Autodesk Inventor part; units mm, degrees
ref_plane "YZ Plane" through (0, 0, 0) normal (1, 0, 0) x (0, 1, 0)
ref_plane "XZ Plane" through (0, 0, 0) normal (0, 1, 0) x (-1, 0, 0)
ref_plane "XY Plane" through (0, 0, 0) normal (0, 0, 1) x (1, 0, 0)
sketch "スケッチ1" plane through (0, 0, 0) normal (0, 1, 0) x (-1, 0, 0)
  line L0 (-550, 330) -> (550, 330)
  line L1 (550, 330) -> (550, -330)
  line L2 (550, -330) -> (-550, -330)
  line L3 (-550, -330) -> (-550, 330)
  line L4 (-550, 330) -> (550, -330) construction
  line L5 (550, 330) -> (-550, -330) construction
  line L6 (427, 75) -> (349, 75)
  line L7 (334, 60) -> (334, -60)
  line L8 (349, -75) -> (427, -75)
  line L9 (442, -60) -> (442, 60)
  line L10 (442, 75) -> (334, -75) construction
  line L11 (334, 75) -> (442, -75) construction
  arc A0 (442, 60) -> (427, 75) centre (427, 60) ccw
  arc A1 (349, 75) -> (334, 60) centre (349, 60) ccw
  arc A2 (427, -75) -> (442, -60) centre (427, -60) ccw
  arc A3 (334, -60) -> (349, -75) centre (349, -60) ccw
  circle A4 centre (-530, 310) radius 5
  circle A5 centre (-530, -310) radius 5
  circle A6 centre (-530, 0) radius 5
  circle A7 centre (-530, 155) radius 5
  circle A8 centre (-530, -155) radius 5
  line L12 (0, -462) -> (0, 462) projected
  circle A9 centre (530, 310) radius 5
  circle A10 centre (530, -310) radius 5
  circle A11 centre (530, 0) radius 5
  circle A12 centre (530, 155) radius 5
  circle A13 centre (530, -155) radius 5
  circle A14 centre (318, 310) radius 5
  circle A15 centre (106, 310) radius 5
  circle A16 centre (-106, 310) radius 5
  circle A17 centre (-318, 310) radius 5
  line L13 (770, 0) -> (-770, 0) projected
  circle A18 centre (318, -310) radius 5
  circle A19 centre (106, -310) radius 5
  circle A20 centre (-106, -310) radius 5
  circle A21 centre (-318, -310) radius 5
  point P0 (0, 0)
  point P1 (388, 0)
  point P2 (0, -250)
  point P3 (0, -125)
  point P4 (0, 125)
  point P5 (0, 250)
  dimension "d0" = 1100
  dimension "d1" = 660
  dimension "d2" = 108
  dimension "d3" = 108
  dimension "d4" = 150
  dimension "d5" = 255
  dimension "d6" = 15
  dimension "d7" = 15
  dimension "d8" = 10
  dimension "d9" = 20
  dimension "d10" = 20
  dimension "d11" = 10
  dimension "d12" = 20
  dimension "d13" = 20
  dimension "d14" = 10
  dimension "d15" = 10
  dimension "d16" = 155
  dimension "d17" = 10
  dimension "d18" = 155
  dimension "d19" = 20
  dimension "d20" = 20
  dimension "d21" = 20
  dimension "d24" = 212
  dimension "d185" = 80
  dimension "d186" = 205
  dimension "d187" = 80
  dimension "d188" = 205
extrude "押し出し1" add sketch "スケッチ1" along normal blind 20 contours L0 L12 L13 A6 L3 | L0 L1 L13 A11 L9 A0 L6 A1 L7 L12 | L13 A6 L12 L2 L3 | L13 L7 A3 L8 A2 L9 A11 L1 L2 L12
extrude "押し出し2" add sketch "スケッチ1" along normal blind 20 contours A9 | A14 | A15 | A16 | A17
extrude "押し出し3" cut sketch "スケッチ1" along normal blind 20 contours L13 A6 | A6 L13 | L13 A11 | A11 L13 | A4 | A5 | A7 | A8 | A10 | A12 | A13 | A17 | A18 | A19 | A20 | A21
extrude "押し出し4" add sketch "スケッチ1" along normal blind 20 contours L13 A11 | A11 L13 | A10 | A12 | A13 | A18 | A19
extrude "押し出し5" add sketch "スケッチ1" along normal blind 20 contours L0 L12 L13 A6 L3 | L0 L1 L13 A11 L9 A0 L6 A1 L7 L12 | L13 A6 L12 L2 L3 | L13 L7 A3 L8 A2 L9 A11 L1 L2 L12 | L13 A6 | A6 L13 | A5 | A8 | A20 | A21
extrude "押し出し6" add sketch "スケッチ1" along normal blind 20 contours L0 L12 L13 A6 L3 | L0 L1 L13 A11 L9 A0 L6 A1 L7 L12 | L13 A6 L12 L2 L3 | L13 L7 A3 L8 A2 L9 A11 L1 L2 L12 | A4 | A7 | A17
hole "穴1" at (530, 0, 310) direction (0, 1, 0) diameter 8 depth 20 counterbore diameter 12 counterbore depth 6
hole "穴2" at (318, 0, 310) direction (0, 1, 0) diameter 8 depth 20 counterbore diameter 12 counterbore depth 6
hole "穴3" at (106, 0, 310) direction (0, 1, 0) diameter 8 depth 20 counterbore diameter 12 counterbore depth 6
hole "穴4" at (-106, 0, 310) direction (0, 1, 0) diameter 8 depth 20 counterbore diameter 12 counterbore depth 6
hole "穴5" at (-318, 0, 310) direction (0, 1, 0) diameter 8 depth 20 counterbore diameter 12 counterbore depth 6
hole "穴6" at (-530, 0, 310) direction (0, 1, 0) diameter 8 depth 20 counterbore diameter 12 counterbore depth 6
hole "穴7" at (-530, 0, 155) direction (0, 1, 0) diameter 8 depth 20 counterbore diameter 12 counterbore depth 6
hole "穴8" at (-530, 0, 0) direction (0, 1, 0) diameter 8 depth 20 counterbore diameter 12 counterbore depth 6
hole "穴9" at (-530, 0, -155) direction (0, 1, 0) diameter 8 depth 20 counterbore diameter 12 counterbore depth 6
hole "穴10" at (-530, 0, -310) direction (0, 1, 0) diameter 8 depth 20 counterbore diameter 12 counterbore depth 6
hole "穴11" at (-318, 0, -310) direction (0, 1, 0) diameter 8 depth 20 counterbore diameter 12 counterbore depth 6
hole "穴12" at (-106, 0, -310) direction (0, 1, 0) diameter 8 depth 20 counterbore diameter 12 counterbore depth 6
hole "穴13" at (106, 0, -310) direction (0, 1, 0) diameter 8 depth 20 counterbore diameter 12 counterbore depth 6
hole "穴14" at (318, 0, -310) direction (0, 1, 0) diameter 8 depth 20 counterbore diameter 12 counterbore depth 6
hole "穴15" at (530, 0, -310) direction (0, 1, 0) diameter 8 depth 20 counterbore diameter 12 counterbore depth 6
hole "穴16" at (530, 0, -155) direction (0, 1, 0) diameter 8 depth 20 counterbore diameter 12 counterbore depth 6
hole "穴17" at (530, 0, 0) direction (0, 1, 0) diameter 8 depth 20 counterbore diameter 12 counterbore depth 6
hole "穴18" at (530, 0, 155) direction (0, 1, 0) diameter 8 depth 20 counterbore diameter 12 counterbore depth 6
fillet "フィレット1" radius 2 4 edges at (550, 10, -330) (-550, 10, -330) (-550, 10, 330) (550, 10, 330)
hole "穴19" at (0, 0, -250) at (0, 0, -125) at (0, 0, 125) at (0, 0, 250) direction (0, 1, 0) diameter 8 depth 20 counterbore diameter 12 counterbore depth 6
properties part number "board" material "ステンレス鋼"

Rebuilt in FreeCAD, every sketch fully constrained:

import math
import FreeCAD as App
import Part
import Sketcher
Q = App.Units.Quantity


def edges_at(feature, points):
    """Names of the edges that pass closest to the given points."""
    edges = feature.Shape.Edges
    near = lambda p: min(range(len(edges)), key=lambda i: edges[i].distToShape(Part.Vertex(*p))[0])
    return sorted({f"Edge{near(p) + 1}" for p in points})

doc = App.newDocument("Part")
body = doc.addObject("PartDesign::Body", "Body")

# Sketch on XZ plane
sketch1 = body.newObject("Sketcher::SketchObject", "Sketch")
sketch1.AttachmentSupport = (doc.getObject("XZ_Plane"), [""])
sketch1.MapMode = "FlatFace"
sketch1.addGeometry([
    Part.LineSegment(App.Vector(550, 330, 0), App.Vector(550, -330, 0)),  # 0
    Part.LineSegment(App.Vector(550, -330, 0), App.Vector(-550, -330, 0)),  # 1
    Part.LineSegment(App.Vector(-550, -330, 0), App.Vector(-550, 330, 0)),  # 2
    Part.LineSegment(App.Vector(-550, 330, 0), App.Vector(550, 330, 0)),  # 3
    Part.Circle(App.Vector(530, 0, 0), App.Vector(0, 0, 1), 5),  # 4
    Part.Circle(App.Vector(530, 155, 0), App.Vector(0, 0, 1), 5),  # 5
    Part.Circle(App.Vector(530, 310, 0), App.Vector(0, 0, 1), 5),  # 6
    Part.Circle(App.Vector(318, 310, 0), App.Vector(0, 0, 1), 5),  # 7
    Part.Circle(App.Vector(106, 310, 0), App.Vector(0, 0, 1), 5),  # 8
    Part.Circle(App.Vector(-530, 0, 0), App.Vector(0, 0, 1), 5),  # 9
    Part.LineSegment(App.Vector(-442, 60, 0), App.Vector(-442, -60, 0)),  # 10
    Part.ArcOfCircle(Part.Circle(App.Vector(-427, -60, 0), App.Vector(0, 0, 1), 15), math.radians(180), math.radians(270)),  # 11
    Part.LineSegment(App.Vector(-427, -75, 0), App.Vector(-349, -75, 0)),  # 12
    Part.ArcOfCircle(Part.Circle(App.Vector(-349, -60, 0), App.Vector(0, 0, 1), 15), math.radians(-90), math.radians(0)),  # 13
    Part.LineSegment(App.Vector(-334, -60, 0), App.Vector(-334, 60, 0)),  # 14
    Part.ArcOfCircle(Part.Circle(App.Vector(-349, 60, 0), App.Vector(0, 0, 1), 15), math.radians(0), math.radians(90)),  # 15
    Part.LineSegment(App.Vector(-349, 75, 0), App.Vector(-427, 75, 0)),  # 16
    Part.ArcOfCircle(Part.Circle(App.Vector(-427, 60, 0), App.Vector(0, 0, 1), 15), math.radians(90), math.radians(180)),  # 17
    Part.Circle(App.Vector(-530, 310, 0), App.Vector(0, 0, 1), 5),  # 18
    Part.Circle(App.Vector(-530, 155, 0), App.Vector(0, 0, 1), 5),  # 19
    Part.Circle(App.Vector(-106, 310, 0), App.Vector(0, 0, 1), 5),  # 20
    Part.Circle(App.Vector(-318, 310, 0), App.Vector(0, 0, 1), 5),  # 21
    Part.Circle(App.Vector(106, -310, 0), App.Vector(0, 0, 1), 5),  # 22
    Part.Circle(App.Vector(530, -155, 0), App.Vector(0, 0, 1), 5),  # 23
    Part.Circle(App.Vector(530, -310, 0), App.Vector(0, 0, 1), 5),  # 24
    Part.Circle(App.Vector(318, -310, 0), App.Vector(0, 0, 1), 5),  # 25
    Part.Circle(App.Vector(-318, -310, 0), App.Vector(0, 0, 1), 5),  # 26
    Part.Circle(App.Vector(-530, -310, 0), App.Vector(0, 0, 1), 5),  # 27
    Part.Circle(App.Vector(-530, -155, 0), App.Vector(0, 0, 1), 5),  # 28
    Part.Circle(App.Vector(-106, -310, 0), App.Vector(0, 0, 1), 5),  # 29
], False)
sketch1.addConstraint([
    Sketcher.Constraint("Coincident", 0, 2, 1, 1),
    Sketcher.Constraint("Coincident", 1, 2, 2, 1),
    Sketcher.Constraint("Coincident", 2, 2, 3, 1),
    Sketcher.Constraint("Coincident", 3, 2, 0, 1),
    Sketcher.Constraint("Tangent", 10, 2, 11, 1),
    Sketcher.Constraint("Tangent", 11, 2, 12, 1),
    Sketcher.Constraint("Tangent", 12, 2, 13, 1),
    Sketcher.Constraint("Tangent", 13, 2, 14, 1),
    Sketcher.Constraint("Tangent", 14, 2, 15, 1),
    Sketcher.Constraint("Tangent", 15, 2, 16, 1),
    Sketcher.Constraint("Tangent", 16, 2, 17, 1),
    Sketcher.Constraint("Tangent", 17, 2, 10, 1),
    Sketcher.Constraint("Vertical", 0),
    Sketcher.Constraint("Horizontal", 1),
    Sketcher.Constraint("Vertical", 2),
    Sketcher.Constraint("Horizontal", 3),
    Sketcher.Constraint("Vertical", 10),
    Sketcher.Constraint("Horizontal", 12),
    Sketcher.Constraint("Vertical", 14),
    Sketcher.Constraint("Horizontal", 16),
    Sketcher.Constraint("Equal", 4, 5),
    Sketcher.Constraint("Equal", 5, 6),
    Sketcher.Constraint("Equal", 6, 7),
    Sketcher.Constraint("Equal", 7, 8),
    Sketcher.Constraint("Equal", 8, 9),
    Sketcher.Constraint("Equal", 11, 13),
    Sketcher.Constraint("Equal", 13, 15),
    Sketcher.Constraint("Equal", 15, 17),
    Sketcher.Constraint("Equal", 9, 18),
    Sketcher.Constraint("Equal", 18, 19),
    Sketcher.Constraint("Equal", 19, 20),
    Sketcher.Constraint("Equal", 20, 21),
    Sketcher.Constraint("Equal", 21, 22),
    Sketcher.Constraint("Equal", 22, 23),
    Sketcher.Constraint("Equal", 23, 24),
    Sketcher.Constraint("Equal", 24, 25),
    Sketcher.Constraint("Equal", 25, 26),
    Sketcher.Constraint("Equal", 26, 27),
    Sketcher.Constraint("Equal", 27, 28),
    Sketcher.Constraint("Equal", 28, 29),
    Sketcher.Constraint("Symmetric", 4, 3, 9, 3, -1, 1),
    Sketcher.Constraint("Symmetric", 20, 3, 22, 3, -1, 1),
    Sketcher.Constraint("Symmetric", 19, 3, 23, 3, -1, 1),
    Sketcher.Constraint("Symmetric", 18, 3, 24, 3, -1, 1),
    Sketcher.Constraint("Symmetric", 21, 3, 25, 3, -1, 1),
    Sketcher.Constraint("Symmetric", 7, 3, 26, 3, -1, 1),
    Sketcher.Constraint("Symmetric", 6, 3, 27, 3, -1, 1),
    Sketcher.Constraint("Symmetric", 5, 3, 28, 3, -1, 1),
    Sketcher.Constraint("Symmetric", 8, 3, 29, 3, -1, 1),
    Sketcher.Constraint("Symmetric", 0, 2, 2, 2, -1, 1),
    Sketcher.Constraint("Symmetric", 6, 3, 18, 3, -2),
    Sketcher.Constraint("Symmetric", 5, 3, 19, 3, -2),
    Sketcher.Constraint("Symmetric", 8, 3, 20, 3, -2),
    Sketcher.Constraint("Symmetric", 7, 3, 21, 3, -2),
    Sketcher.Constraint("PointOnObject", 4, 3, -1),
    Sketcher.Constraint("Horizontal", 6, 3, 7, 3),
    Sketcher.Constraint("Horizontal", 7, 3, 8, 3),
    Sketcher.Constraint("Vertical", 4, 3, 5, 3),
    Sketcher.Constraint("Vertical", 5, 3, 6, 3),
    Sketcher.Constraint("Diameter", 4, Q("10 mm")),
    Sketcher.Constraint("Radius", 11, Q("15 mm")),
    Sketcher.Constraint("DistanceX", 1, 2, 1, 1, Q("1100 mm")),
    Sketcher.Constraint("DistanceY", 0, 2, 0, 1, Q("660 mm")),
    Sketcher.Constraint("DistanceY", -1, 1, 5, 3, Q("155 mm")),
    Sketcher.Constraint("DistanceY", 5, 3, 6, 3, Q("155 mm")),
    Sketcher.Constraint("DistanceX", 7, 3, 6, 3, Q("212 mm")),
    Sketcher.Constraint("DistanceX", 8, 3, 7, 3, Q("212 mm")),
    Sketcher.Constraint("DistanceX", 20, 3, 8, 3, Q("212 mm")),
    Sketcher.Constraint("DistanceY", 28, 3, 11, 2, Q("80 mm")),
    Sketcher.Constraint("DistanceX", 10, 2, 13, 2, Q("108 mm")),
    Sketcher.Constraint("DistanceY", 10, 2, 10, 1, Q("120 mm")),
    Sketcher.Constraint("DistanceX", 11, 3, -1, 1, Q("427 mm")),
])
pad1 = body.newObject("PartDesign::Pad", "Pad")
pad1.Profile = sketch1
pad1.Length = 20
pad1.Reversed = True

# Sketch on XZ plane
sketch2 = body.newObject("Sketcher::SketchObject", "Sketch001")
sketch2.AttachmentSupport = (doc.getObject("XZ_Plane"), [""])
sketch2.MapMode = "FlatFace"
sketch2.addGeometry([
    Part.Circle(App.Vector(-530, 310, 0), App.Vector(0, 0, 1), 5),  # 0
    Part.Circle(App.Vector(-318, 310, 0), App.Vector(0, 0, 1), 5),  # 1
    Part.Circle(App.Vector(-106, 310, 0), App.Vector(0, 0, 1), 5),  # 2
    Part.Circle(App.Vector(106, 310, 0), App.Vector(0, 0, 1), 5),  # 3
    Part.Circle(App.Vector(318, 310, 0), App.Vector(0, 0, 1), 5),  # 4
], False)
sketch2.addConstraint([
    Sketcher.Constraint("Equal", 0, 1),
    Sketcher.Constraint("Equal", 1, 2),
    Sketcher.Constraint("Equal", 2, 3),
    Sketcher.Constraint("Equal", 3, 4),
    Sketcher.Constraint("Symmetric", 2, 3, 3, 3, -2),
    Sketcher.Constraint("Symmetric", 1, 3, 4, 3, -2),
    Sketcher.Constraint("Horizontal", 0, 3, 1, 3),
    Sketcher.Constraint("Horizontal", 1, 3, 2, 3),
    Sketcher.Constraint("Diameter", 0, Q("10 mm")),
    Sketcher.Constraint("DistanceX", 0, 3, 1, 3, Q("212 mm")),
    Sketcher.Constraint("DistanceX", 1, 3, 2, 3, Q("212 mm")),
    Sketcher.Constraint("DistanceX", 2, 3, 3, 3, Q("212 mm")),
    Sketcher.Constraint("DistanceY", -1, 1, 0, 3, Q("310 mm")),
])
pad2 = body.newObject("PartDesign::Pad", "Pad001")
pad2.Profile = sketch2
pad2.Length = 20
pad2.Reversed = True

# Sketch on XZ plane
sketch3 = body.newObject("Sketcher::SketchObject", "Sketch002")
sketch3.AttachmentSupport = (doc.getObject("XZ_Plane"), [""])
sketch3.MapMode = "FlatFace"
sketch3.addGeometry([
    Part.Circle(App.Vector(530, 0, 0), App.Vector(0, 0, 1), 5),  # 0
    Part.Circle(App.Vector(-530, 0, 0), App.Vector(0, 0, 1), 5),  # 1
    Part.Circle(App.Vector(530, 310, 0), App.Vector(0, 0, 1), 5),  # 2
    Part.Circle(App.Vector(530, -310, 0), App.Vector(0, 0, 1), 5),  # 3
    Part.Circle(App.Vector(530, 155, 0), App.Vector(0, 0, 1), 5),  # 4
    Part.Circle(App.Vector(530, -155, 0), App.Vector(0, 0, 1), 5),  # 5
    Part.Circle(App.Vector(-530, -310, 0), App.Vector(0, 0, 1), 5),  # 6
    Part.Circle(App.Vector(-530, 155, 0), App.Vector(0, 0, 1), 5),  # 7
    Part.Circle(App.Vector(-530, -155, 0), App.Vector(0, 0, 1), 5),  # 8
    Part.Circle(App.Vector(318, 310, 0), App.Vector(0, 0, 1), 5),  # 9
    Part.Circle(App.Vector(-318, -310, 0), App.Vector(0, 0, 1), 5),  # 10
    Part.Circle(App.Vector(-106, -310, 0), App.Vector(0, 0, 1), 5),  # 11
    Part.Circle(App.Vector(106, -310, 0), App.Vector(0, 0, 1), 5),  # 12
    Part.Circle(App.Vector(318, -310, 0), App.Vector(0, 0, 1), 5),  # 13
], False)
sketch3.addConstraint([
    Sketcher.Constraint("Equal", 0, 1),
    Sketcher.Constraint("Equal", 1, 2),
    Sketcher.Constraint("Equal", 2, 3),
    Sketcher.Constraint("Equal", 3, 4),
    Sketcher.Constraint("Equal", 4, 5),
    Sketcher.Constraint("Equal", 5, 6),
    Sketcher.Constraint("Equal", 6, 7),
    Sketcher.Constraint("Equal", 7, 8),
    Sketcher.Constraint("Equal", 8, 9),
    Sketcher.Constraint("Equal", 9, 10),
    Sketcher.Constraint("Equal", 10, 11),
    Sketcher.Constraint("Equal", 11, 12),
    Sketcher.Constraint("Equal", 12, 13),
    Sketcher.Constraint("Symmetric", 0, 3, 1, 3, -1, 1),
    Sketcher.Constraint("Symmetric", 2, 3, 6, 3, -1, 1),
    Sketcher.Constraint("Symmetric", 5, 3, 7, 3, -1, 1),
    Sketcher.Constraint("Symmetric", 4, 3, 8, 3, -1, 1),
    Sketcher.Constraint("Symmetric", 9, 3, 10, 3, -1, 1),
    Sketcher.Constraint("Symmetric", 3, 3, 6, 3, -2),
    Sketcher.Constraint("Symmetric", 4, 3, 7, 3, -2),
    Sketcher.Constraint("Symmetric", 11, 3, 12, 3, -2),
    Sketcher.Constraint("Symmetric", 10, 3, 13, 3, -2),
    Sketcher.Constraint("PointOnObject", 0, 3, -1),
    Sketcher.Constraint("Horizontal", 2, 3, 9, 3),
    Sketcher.Constraint("Horizontal", 10, 3, 11, 3),
    Sketcher.Constraint("Vertical", 0, 3, 2, 3),
    Sketcher.Constraint("Vertical", 3, 3, 4, 3),
    Sketcher.Constraint("Diameter", 0, Q("10 mm")),
    Sketcher.Constraint("DistanceY", -1, 1, 4, 3, Q("155 mm")),
    Sketcher.Constraint("DistanceY", 4, 3, 2, 3, Q("155 mm")),
    Sketcher.Constraint("DistanceX", 9, 3, 2, 3, Q("212 mm")),
    Sketcher.Constraint("DistanceX", 10, 3, 11, 3, Q("212 mm")),
    Sketcher.Constraint("DistanceX", 11, 3, 12, 3, Q("212 mm")),
])
pocket1 = body.newObject("PartDesign::Pocket", "Pocket")
pocket1.Profile = sketch3
pocket1.Length = 20

# Sketch on XZ plane
sketch4 = body.newObject("Sketcher::SketchObject", "Sketch003")
sketch4.AttachmentSupport = (doc.getObject("XZ_Plane"), [""])
sketch4.MapMode = "FlatFace"
sketch4.addGeometry([
    Part.Circle(App.Vector(-530, 0, 0), App.Vector(0, 0, 1), 5),  # 0
    Part.Circle(App.Vector(-530, -310, 0), App.Vector(0, 0, 1), 5),  # 1
    Part.Circle(App.Vector(-530, 155, 0), App.Vector(0, 0, 1), 5),  # 2
    Part.Circle(App.Vector(-530, -155, 0), App.Vector(0, 0, 1), 5),  # 3
    Part.Circle(App.Vector(-318, -310, 0), App.Vector(0, 0, 1), 5),  # 4
    Part.Circle(App.Vector(-106, -310, 0), App.Vector(0, 0, 1), 5),  # 5
], False)
sketch4.addConstraint([
    Sketcher.Constraint("Equal", 0, 1),
    Sketcher.Constraint("Equal", 1, 2),
    Sketcher.Constraint("Equal", 2, 3),
    Sketcher.Constraint("Equal", 3, 4),
    Sketcher.Constraint("Equal", 4, 5),
    Sketcher.Constraint("Symmetric", 2, 3, 3, 3, -1),
    Sketcher.Constraint("PointOnObject", 0, 3, -1),
    Sketcher.Constraint("Horizontal", 1, 3, 4, 3),
    Sketcher.Constraint("Horizontal", 4, 3, 5, 3),
    Sketcher.Constraint("Vertical", 0, 3, 1, 3),
    Sketcher.Constraint("Vertical", 1, 3, 2, 3),
    Sketcher.Constraint("Diameter", 0, Q("10 mm")),
    Sketcher.Constraint("DistanceY", -1, 1, 2, 3, Q("155 mm")),
    Sketcher.Constraint("DistanceY", 1, 3, 3, 3, Q("155 mm")),
    Sketcher.Constraint("DistanceX", 1, 3, 4, 3, Q("212 mm")),
    Sketcher.Constraint("DistanceX", 4, 3, 5, 3, Q("212 mm")),
    Sketcher.Constraint("DistanceX", 0, 3, -1, 1, Q("530 mm")),
])
pad3 = body.newObject("PartDesign::Pad", "Pad002")
pad3.Profile = sketch4
pad3.Length = 20
pad3.Reversed = True

# Sketch on XZ plane
sketch5 = body.newObject("Sketcher::SketchObject", "Sketch004")
sketch5.AttachmentSupport = (doc.getObject("XZ_Plane"), [""])
sketch5.MapMode = "FlatFace"
sketch5.addGeometry([
    Part.LineSegment(App.Vector(550, 330, 0), App.Vector(550, -330, 0)),  # 0
    Part.LineSegment(App.Vector(550, -330, 0), App.Vector(-550, -330, 0)),  # 1
    Part.LineSegment(App.Vector(-550, -330, 0), App.Vector(-550, 330, 0)),  # 2
    Part.LineSegment(App.Vector(-550, 330, 0), App.Vector(550, 330, 0)),  # 3
    Part.Circle(App.Vector(530, 155, 0), App.Vector(0, 0, 1), 5),  # 4
    Part.Circle(App.Vector(530, 310, 0), App.Vector(0, 0, 1), 5),  # 5
    Part.Circle(App.Vector(318, 310, 0), App.Vector(0, 0, 1), 5),  # 6
    Part.Circle(App.Vector(106, 310, 0), App.Vector(0, 0, 1), 5),  # 7
    Part.Circle(App.Vector(-530, 0, 0), App.Vector(0, 0, 1), 5),  # 8
    Part.LineSegment(App.Vector(-442, 60, 0), App.Vector(-442, -60, 0)),  # 9
    Part.ArcOfCircle(Part.Circle(App.Vector(-427, -60, 0), App.Vector(0, 0, 1), 15), math.radians(180), math.radians(270)),  # 10
    Part.LineSegment(App.Vector(-427, -75, 0), App.Vector(-349, -75, 0)),  # 11
    Part.ArcOfCircle(Part.Circle(App.Vector(-349, -60, 0), App.Vector(0, 0, 1), 15), math.radians(-90), math.radians(0)),  # 12
    Part.LineSegment(App.Vector(-334, -60, 0), App.Vector(-334, 60, 0)),  # 13
    Part.ArcOfCircle(Part.Circle(App.Vector(-349, 60, 0), App.Vector(0, 0, 1), 15), math.radians(0), math.radians(90)),  # 14
    Part.LineSegment(App.Vector(-349, 75, 0), App.Vector(-427, 75, 0)),  # 15
    Part.ArcOfCircle(Part.Circle(App.Vector(-427, 60, 0), App.Vector(0, 0, 1), 15), math.radians(90), math.radians(180)),  # 16
    Part.Circle(App.Vector(-530, 310, 0), App.Vector(0, 0, 1), 5),  # 17
    Part.Circle(App.Vector(-530, 155, 0), App.Vector(0, 0, 1), 5),  # 18
    Part.Circle(App.Vector(-106, 310, 0), App.Vector(0, 0, 1), 5),  # 19
    Part.Circle(App.Vector(-318, 310, 0), App.Vector(0, 0, 1), 5),  # 20
    Part.Circle(App.Vector(-318, -310, 0), App.Vector(0, 0, 1), 5),  # 21
    Part.Circle(App.Vector(-530, -310, 0), App.Vector(0, 0, 1), 5),  # 22
    Part.Circle(App.Vector(-530, -155, 0), App.Vector(0, 0, 1), 5),  # 23
    Part.Circle(App.Vector(-106, -310, 0), App.Vector(0, 0, 1), 5),  # 24
], False)
sketch5.addConstraint([
    Sketcher.Constraint("Coincident", 0, 2, 1, 1),
    Sketcher.Constraint("Coincident", 1, 2, 2, 1),
    Sketcher.Constraint("Coincident", 2, 2, 3, 1),
    Sketcher.Constraint("Coincident", 3, 2, 0, 1),
    Sketcher.Constraint("Tangent", 9, 2, 10, 1),
    Sketcher.Constraint("Tangent", 10, 2, 11, 1),
    Sketcher.Constraint("Tangent", 11, 2, 12, 1),
    Sketcher.Constraint("Tangent", 12, 2, 13, 1),
    Sketcher.Constraint("Tangent", 13, 2, 14, 1),
    Sketcher.Constraint("Tangent", 14, 2, 15, 1),
    Sketcher.Constraint("Tangent", 15, 2, 16, 1),
    Sketcher.Constraint("Tangent", 16, 2, 9, 1),
    Sketcher.Constraint("Vertical", 0),
    Sketcher.Constraint("Horizontal", 1),
    Sketcher.Constraint("Vertical", 2),
    Sketcher.Constraint("Horizontal", 3),
    Sketcher.Constraint("Vertical", 9),
    Sketcher.Constraint("Horizontal", 11),
    Sketcher.Constraint("Vertical", 13),
    Sketcher.Constraint("Horizontal", 15),
    Sketcher.Constraint("Equal", 4, 5),
    Sketcher.Constraint("Equal", 5, 6),
    Sketcher.Constraint("Equal", 6, 7),
    Sketcher.Constraint("Equal", 7, 8),
    Sketcher.Constraint("Equal", 10, 12),
    Sketcher.Constraint("Equal", 12, 14),
    Sketcher.Constraint("Equal", 14, 16),
    Sketcher.Constraint("Equal", 8, 17),
    Sketcher.Constraint("Equal", 17, 18),
    Sketcher.Constraint("Equal", 18, 19),
    Sketcher.Constraint("Equal", 19, 20),
    Sketcher.Constraint("Equal", 20, 21),
    Sketcher.Constraint("Equal", 21, 22),
    Sketcher.Constraint("Equal", 22, 23),
    Sketcher.Constraint("Equal", 23, 24),
    Sketcher.Constraint("Symmetric", 6, 3, 21, 3, -1, 1),
    Sketcher.Constraint("Symmetric", 5, 3, 22, 3, -1, 1),
    Sketcher.Constraint("Symmetric", 4, 3, 23, 3, -1, 1),
    Sketcher.Constraint("Symmetric", 7, 3, 24, 3, -1, 1),
    Sketcher.Constraint("Symmetric", 0, 2, 2, 2, -1, 1),
    Sketcher.Constraint("Symmetric", 5, 3, 17, 3, -2),
    Sketcher.Constraint("Symmetric", 4, 3, 18, 3, -2),
    Sketcher.Constraint("Symmetric", 7, 3, 19, 3, -2),
    Sketcher.Constraint("Symmetric", 6, 3, 20, 3, -2),
    Sketcher.Constraint("PointOnObject", 8, 3, -1),
    Sketcher.Constraint("Horizontal", 5, 3, 6, 3),
    Sketcher.Constraint("Horizontal", 6, 3, 7, 3),
    Sketcher.Constraint("Vertical", 4, 3, 5, 3),
    Sketcher.Constraint("Vertical", 8, 3, 17, 3),
    Sketcher.Constraint("Diameter", 4, Q("10 mm")),
    Sketcher.Constraint("Radius", 10, Q("15 mm")),
    Sketcher.Constraint("DistanceX", 1, 2, 1, 1, Q("1100 mm")),
    Sketcher.Constraint("DistanceY", 0, 2, 0, 1, Q("660 mm")),
    Sketcher.Constraint("DistanceY", -1, 1, 4, 3, Q("155 mm")),
    Sketcher.Constraint("DistanceY", 4, 3, 5, 3, Q("155 mm")),
    Sketcher.Constraint("DistanceX", 6, 3, 5, 3, Q("212 mm")),
    Sketcher.Constraint("DistanceX", 7, 3, 6, 3, Q("212 mm")),
    Sketcher.Constraint("DistanceX", 19, 3, 7, 3, Q("212 mm")),
    Sketcher.Constraint("DistanceY", 23, 3, 10, 2, Q("80 mm")),
    Sketcher.Constraint("DistanceX", 9, 2, 12, 2, Q("108 mm")),
    Sketcher.Constraint("DistanceY", 9, 2, 9, 1, Q("120 mm")),
    Sketcher.Constraint("DistanceX", 10, 3, -1, 1, Q("427 mm")),
])
pad4 = body.newObject("PartDesign::Pad", "Pad003")
pad4.Profile = sketch5
pad4.Length = 20
pad4.Reversed = True

# Sketch on XZ plane
sketch6 = body.newObject("Sketcher::SketchObject", "Sketch005")
sketch6.AttachmentSupport = (doc.getObject("XZ_Plane"), [""])
sketch6.MapMode = "FlatFace"
sketch6.addGeometry([
    Part.LineSegment(App.Vector(550, 330, 0), App.Vector(550, -330, 0)),  # 0
    Part.LineSegment(App.Vector(550, -330, 0), App.Vector(-550, -330, 0)),  # 1
    Part.LineSegment(App.Vector(-550, -330, 0), App.Vector(-550, 330, 0)),  # 2
    Part.LineSegment(App.Vector(-550, 330, 0), App.Vector(550, 330, 0)),  # 3
    Part.Circle(App.Vector(530, 0, 0), App.Vector(0, 0, 1), 5),  # 4
    Part.Circle(App.Vector(106, 310, 0), App.Vector(0, 0, 1), 5),  # 5
    Part.Circle(App.Vector(-530, 0, 0), App.Vector(0, 0, 1), 5),  # 6
    Part.LineSegment(App.Vector(-442, 60, 0), App.Vector(-442, -60, 0)),  # 7
    Part.ArcOfCircle(Part.Circle(App.Vector(-427, -60, 0), App.Vector(0, 0, 1), 15), math.radians(180), math.radians(270)),  # 8
    Part.LineSegment(App.Vector(-427, -75, 0), App.Vector(-349, -75, 0)),  # 9
    Part.ArcOfCircle(Part.Circle(App.Vector(-349, -60, 0), App.Vector(0, 0, 1), 15), math.radians(-90), math.radians(0)),  # 10
    Part.LineSegment(App.Vector(-334, -60, 0), App.Vector(-334, 60, 0)),  # 11
    Part.ArcOfCircle(Part.Circle(App.Vector(-349, 60, 0), App.Vector(0, 0, 1), 15), math.radians(0), math.radians(90)),  # 12
    Part.LineSegment(App.Vector(-349, 75, 0), App.Vector(-427, 75, 0)),  # 13
    Part.ArcOfCircle(Part.Circle(App.Vector(-427, 60, 0), App.Vector(0, 0, 1), 15), math.radians(90), math.radians(180)),  # 14
    Part.Circle(App.Vector(-530, 310, 0), App.Vector(0, 0, 1), 5),  # 15
    Part.Circle(App.Vector(-530, 155, 0), App.Vector(0, 0, 1), 5),  # 16
    Part.Circle(App.Vector(-106, 310, 0), App.Vector(0, 0, 1), 5),  # 17
    Part.Circle(App.Vector(-318, 310, 0), App.Vector(0, 0, 1), 5),  # 18
    Part.Circle(App.Vector(106, -310, 0), App.Vector(0, 0, 1), 5),  # 19
    Part.Circle(App.Vector(530, -155, 0), App.Vector(0, 0, 1), 5),  # 20
    Part.Circle(App.Vector(530, -310, 0), App.Vector(0, 0, 1), 5),  # 21
    Part.Circle(App.Vector(318, -310, 0), App.Vector(0, 0, 1), 5),  # 22
    Part.Circle(App.Vector(-318, -310, 0), App.Vector(0, 0, 1), 5),  # 23
    Part.Circle(App.Vector(-530, -310, 0), App.Vector(0, 0, 1), 5),  # 24
    Part.Circle(App.Vector(-530, -155, 0), App.Vector(0, 0, 1), 5),  # 25
    Part.Circle(App.Vector(-106, -310, 0), App.Vector(0, 0, 1), 5),  # 26
], False)
sketch6.addConstraint([
    Sketcher.Constraint("Coincident", 0, 2, 1, 1),
    Sketcher.Constraint("Coincident", 1, 2, 2, 1),
    Sketcher.Constraint("Coincident", 2, 2, 3, 1),
    Sketcher.Constraint("Coincident", 3, 2, 0, 1),
    Sketcher.Constraint("Tangent", 7, 2, 8, 1),
    Sketcher.Constraint("Tangent", 8, 2, 9, 1),
    Sketcher.Constraint("Tangent", 9, 2, 10, 1),
    Sketcher.Constraint("Tangent", 10, 2, 11, 1),
    Sketcher.Constraint("Tangent", 11, 2, 12, 1),
    Sketcher.Constraint("Tangent", 12, 2, 13, 1),
    Sketcher.Constraint("Tangent", 13, 2, 14, 1),
    Sketcher.Constraint("Tangent", 14, 2, 7, 1),
    Sketcher.Constraint("Vertical", 0),
    Sketcher.Constraint("Horizontal", 1),
    Sketcher.Constraint("Vertical", 2),
    Sketcher.Constraint("Horizontal", 3),
    Sketcher.Constraint("Vertical", 7),
    Sketcher.Constraint("Horizontal", 9),
    Sketcher.Constraint("Vertical", 11),
    Sketcher.Constraint("Horizontal", 13),
    Sketcher.Constraint("Equal", 4, 5),
    Sketcher.Constraint("Equal", 5, 6),
    Sketcher.Constraint("Equal", 8, 10),
    Sketcher.Constraint("Equal", 10, 12),
    Sketcher.Constraint("Equal", 12, 14),
    Sketcher.Constraint("Equal", 6, 15),
    Sketcher.Constraint("Equal", 15, 16),
    Sketcher.Constraint("Equal", 16, 17),
    Sketcher.Constraint("Equal", 17, 18),
    Sketcher.Constraint("Equal", 18, 19),
    Sketcher.Constraint("Equal", 19, 20),
    Sketcher.Constraint("Equal", 20, 21),
    Sketcher.Constraint("Equal", 21, 22),
    Sketcher.Constraint("Equal", 22, 23),
    Sketcher.Constraint("Equal", 23, 24),
    Sketcher.Constraint("Equal", 24, 25),
    Sketcher.Constraint("Equal", 25, 26),
    Sketcher.Constraint("Symmetric", 4, 3, 6, 3, -1, 1),
    Sketcher.Constraint("Symmetric", 17, 3, 19, 3, -1, 1),
    Sketcher.Constraint("Symmetric", 16, 3, 20, 3, -1, 1),
    Sketcher.Constraint("Symmetric", 15, 3, 21, 3, -1, 1),
    Sketcher.Constraint("Symmetric", 18, 3, 22, 3, -1, 1),
    Sketcher.Constraint("Symmetric", 5, 3, 26, 3, -1, 1),
    Sketcher.Constraint("Symmetric", 0, 2, 2, 2, -1, 1),
    Sketcher.Constraint("Symmetric", 5, 3, 17, 3, -2),
    Sketcher.Constraint("Symmetric", 22, 3, 23, 3, -2),
    Sketcher.Constraint("Symmetric", 21, 3, 24, 3, -2),
    Sketcher.Constraint("Symmetric", 20, 3, 25, 3, -2),
    Sketcher.Constraint("PointOnObject", 4, 3, -1),
    Sketcher.Constraint("Horizontal", 5, 3, 15, 3),
    Sketcher.Constraint("Horizontal", 17, 3, 18, 3),
    Sketcher.Constraint("Vertical", 6, 3, 15, 3),
    Sketcher.Constraint("Vertical", 15, 3, 16, 3),
    Sketcher.Constraint("Diameter", 4, Q("10 mm")),
    Sketcher.Constraint("Radius", 8, Q("15 mm")),
    Sketcher.Constraint("DistanceX", 1, 2, 1, 1, Q("1100 mm")),
    Sketcher.Constraint("DistanceY", 0, 2, 0, 1, Q("660 mm")),
    Sketcher.Constraint("DistanceY", -1, 1, 16, 3, Q("155 mm")),
    Sketcher.Constraint("DistanceY", 16, 3, 15, 3, Q("155 mm")),
    Sketcher.Constraint("DistanceX", 17, 3, 5, 3, Q("212 mm")),
    Sketcher.Constraint("DistanceX", 15, 3, 18, 3, Q("212 mm")),
    Sketcher.Constraint("DistanceX", 18, 3, 17, 3, Q("212 mm")),
    Sketcher.Constraint("DistanceY", 25, 3, 8, 2, Q("80 mm")),
    Sketcher.Constraint("DistanceX", 7, 2, 10, 2, Q("108 mm")),
    Sketcher.Constraint("DistanceY", 7, 2, 7, 1, Q("120 mm")),
    Sketcher.Constraint("DistanceX", 8, 3, -1, 1, Q("427 mm")),
])
pad5 = body.newObject("PartDesign::Pad", "Pad004")
pad5.Profile = sketch6
pad5.Length = 20
pad5.Reversed = True

# Sketch on XZ plane
sketch7 = body.newObject("Sketcher::SketchObject", "Sketch006")
sketch7.AttachmentSupport = (doc.getObject("XZ_Plane"), [""])
sketch7.MapMode = "FlatFace"
sketch7.addGeometry(Part.Circle(App.Vector(530, 310, 0), App.Vector(0, 0, 1), 4), False)
sketch7.addConstraint([
    Sketcher.Constraint("Diameter", 0, Q("8 mm")),
    Sketcher.Constraint("DistanceX", -1, 1, 0, 3, Q("530 mm")),
    Sketcher.Constraint("DistanceY", -1, 1, 0, 3, Q("310 mm")),
])
doc.recompute()
hole = body.newObject("PartDesign::Hole", "Hole")
hole.Profile = sketch7
hole.ThreadType = "None"
hole.Diameter = 8
hole.DepthType = "Dimension"
hole.Depth = 20
hole.DrillPoint = "Flat"
hole.HoleCutType = "Counterbore"
hole.HoleCutDiameter = 12
hole.HoleCutDepth = 6

# Sketch on XZ plane
sketch8 = body.newObject("Sketcher::SketchObject", "Sketch007")
sketch8.AttachmentSupport = (doc.getObject("XZ_Plane"), [""])
sketch8.MapMode = "FlatFace"
sketch8.addGeometry(Part.Circle(App.Vector(318, 310, 0), App.Vector(0, 0, 1), 4), False)
sketch8.addConstraint([
    Sketcher.Constraint("Diameter", 0, Q("8 mm")),
    Sketcher.Constraint("DistanceX", -1, 1, 0, 3, Q("318 mm")),
    Sketcher.Constraint("DistanceY", -1, 1, 0, 3, Q("310 mm")),
])
doc.recompute()
hole2 = body.newObject("PartDesign::Hole", "Hole001")
hole2.Profile = sketch8
hole2.ThreadType = "None"
hole2.Diameter = 8
hole2.DepthType = "Dimension"
hole2.Depth = 20
hole2.DrillPoint = "Flat"
hole2.HoleCutType = "Counterbore"
hole2.HoleCutDiameter = 12
hole2.HoleCutDepth = 6

# Sketch on XZ plane
sketch9 = body.newObject("Sketcher::SketchObject", "Sketch008")
sketch9.AttachmentSupport = (doc.getObject("XZ_Plane"), [""])
sketch9.MapMode = "FlatFace"
sketch9.addGeometry(Part.Circle(App.Vector(106, 310, 0), App.Vector(0, 0, 1), 4), False)
sketch9.addConstraint([
    Sketcher.Constraint("Diameter", 0, Q("8 mm")),
    Sketcher.Constraint("DistanceX", -1, 1, 0, 3, Q("106 mm")),
    Sketcher.Constraint("DistanceY", -1, 1, 0, 3, Q("310 mm")),
])
doc.recompute()
hole3 = body.newObject("PartDesign::Hole", "Hole002")
hole3.Profile = sketch9
hole3.ThreadType = "None"
hole3.Diameter = 8
hole3.DepthType = "Dimension"
hole3.Depth = 20
hole3.DrillPoint = "Flat"
hole3.HoleCutType = "Counterbore"
hole3.HoleCutDiameter = 12
hole3.HoleCutDepth = 6

# Sketch on XZ plane
sketch10 = body.newObject("Sketcher::SketchObject", "Sketch009")
sketch10.AttachmentSupport = (doc.getObject("XZ_Plane"), [""])
sketch10.MapMode = "FlatFace"
sketch10.addGeometry(Part.Circle(App.Vector(-106, 310, 0), App.Vector(0, 0, 1), 4), False)
sketch10.addConstraint([
    Sketcher.Constraint("Diameter", 0, Q("8 mm")),
    Sketcher.Constraint("DistanceX", 0, 3, -1, 1, Q("106 mm")),
    Sketcher.Constraint("DistanceY", -1, 1, 0, 3, Q("310 mm")),
])
doc.recompute()
hole4 = body.newObject("PartDesign::Hole", "Hole003")
hole4.Profile = sketch10
hole4.ThreadType = "None"
hole4.Diameter = 8
hole4.DepthType = "Dimension"
hole4.Depth = 20
hole4.DrillPoint = "Flat"
hole4.HoleCutType = "Counterbore"
hole4.HoleCutDiameter = 12
hole4.HoleCutDepth = 6

# Sketch on XZ plane
sketch11 = body.newObject("Sketcher::SketchObject", "Sketch010")
sketch11.AttachmentSupport = (doc.getObject("XZ_Plane"), [""])
sketch11.MapMode = "FlatFace"
sketch11.addGeometry(Part.Circle(App.Vector(-318, 310, 0), App.Vector(0, 0, 1), 4), False)
sketch11.addConstraint([
    Sketcher.Constraint("Diameter", 0, Q("8 mm")),
    Sketcher.Constraint("DistanceX", 0, 3, -1, 1, Q("318 mm")),
    Sketcher.Constraint("DistanceY", -1, 1, 0, 3, Q("310 mm")),
])
doc.recompute()
hole5 = body.newObject("PartDesign::Hole", "Hole004")
hole5.Profile = sketch11
hole5.ThreadType = "None"
hole5.Diameter = 8
hole5.DepthType = "Dimension"
hole5.Depth = 20
hole5.DrillPoint = "Flat"
hole5.HoleCutType = "Counterbore"
hole5.HoleCutDiameter = 12
hole5.HoleCutDepth = 6

# Sketch on XZ plane
sketch12 = body.newObject("Sketcher::SketchObject", "Sketch011")
sketch12.AttachmentSupport = (doc.getObject("XZ_Plane"), [""])
sketch12.MapMode = "FlatFace"
sketch12.addGeometry(Part.Circle(App.Vector(-530, 310, 0), App.Vector(0, 0, 1), 4), False)
sketch12.addConstraint([
    Sketcher.Constraint("Diameter", 0, Q("8 mm")),
    Sketcher.Constraint("DistanceX", 0, 3, -1, 1, Q("530 mm")),
    Sketcher.Constraint("DistanceY", -1, 1, 0, 3, Q("310 mm")),
])
doc.recompute()
hole6 = body.newObject("PartDesign::Hole", "Hole005")
hole6.Profile = sketch12
hole6.ThreadType = "None"
hole6.Diameter = 8
hole6.DepthType = "Dimension"
hole6.Depth = 20
hole6.DrillPoint = "Flat"
hole6.HoleCutType = "Counterbore"
hole6.HoleCutDiameter = 12
hole6.HoleCutDepth = 6

# Sketch on XZ plane
sketch13 = body.newObject("Sketcher::SketchObject", "Sketch012")
sketch13.AttachmentSupport = (doc.getObject("XZ_Plane"), [""])
sketch13.MapMode = "FlatFace"
sketch13.addGeometry(Part.Circle(App.Vector(-530, 155, 0), App.Vector(0, 0, 1), 4), False)
sketch13.addConstraint([
    Sketcher.Constraint("Diameter", 0, Q("8 mm")),
    Sketcher.Constraint("DistanceX", 0, 3, -1, 1, Q("530 mm")),
    Sketcher.Constraint("DistanceY", -1, 1, 0, 3, Q("155 mm")),
])
doc.recompute()
hole7 = body.newObject("PartDesign::Hole", "Hole006")
hole7.Profile = sketch13
hole7.ThreadType = "None"
hole7.Diameter = 8
hole7.DepthType = "Dimension"
hole7.Depth = 20
hole7.DrillPoint = "Flat"
hole7.HoleCutType = "Counterbore"
hole7.HoleCutDiameter = 12
hole7.HoleCutDepth = 6

# Sketch on XZ plane
sketch14 = body.newObject("Sketcher::SketchObject", "Sketch013")
sketch14.AttachmentSupport = (doc.getObject("XZ_Plane"), [""])
sketch14.MapMode = "FlatFace"
sketch14.addGeometry(Part.Circle(App.Vector(-530, 0, 0), App.Vector(0, 0, 1), 4), False)
sketch14.addConstraint([
    Sketcher.Constraint("PointOnObject", 0, 3, -1),
    Sketcher.Constraint("Diameter", 0, Q("8 mm")),
    Sketcher.Constraint("DistanceX", 0, 3, -1, 1, Q("530 mm")),
])
doc.recompute()
hole8 = body.newObject("PartDesign::Hole", "Hole007")
hole8.Profile = sketch14
hole8.ThreadType = "None"
hole8.Diameter = 8
hole8.DepthType = "Dimension"
hole8.Depth = 20
hole8.DrillPoint = "Flat"
hole8.HoleCutType = "Counterbore"
hole8.HoleCutDiameter = 12
hole8.HoleCutDepth = 6

# Sketch on XZ plane
sketch15 = body.newObject("Sketcher::SketchObject", "Sketch014")
sketch15.AttachmentSupport = (doc.getObject("XZ_Plane"), [""])
sketch15.MapMode = "FlatFace"
sketch15.addGeometry(Part.Circle(App.Vector(-530, -155, 0), App.Vector(0, 0, 1), 4), False)
sketch15.addConstraint([
    Sketcher.Constraint("Diameter", 0, Q("8 mm")),
    Sketcher.Constraint("DistanceX", 0, 3, -1, 1, Q("530 mm")),
    Sketcher.Constraint("DistanceY", 0, 3, -1, 1, Q("155 mm")),
])
doc.recompute()
hole9 = body.newObject("PartDesign::Hole", "Hole008")
hole9.Profile = sketch15
hole9.ThreadType = "None"
hole9.Diameter = 8
hole9.DepthType = "Dimension"
hole9.Depth = 20
hole9.DrillPoint = "Flat"
hole9.HoleCutType = "Counterbore"
hole9.HoleCutDiameter = 12
hole9.HoleCutDepth = 6

# Sketch on XZ plane
sketch16 = body.newObject("Sketcher::SketchObject", "Sketch015")
sketch16.AttachmentSupport = (doc.getObject("XZ_Plane"), [""])
sketch16.MapMode = "FlatFace"
sketch16.addGeometry(Part.Circle(App.Vector(-530, -310, 0), App.Vector(0, 0, 1), 4), False)
sketch16.addConstraint([
    Sketcher.Constraint("Diameter", 0, Q("8 mm")),
    Sketcher.Constraint("DistanceX", 0, 3, -1, 1, Q("530 mm")),
    Sketcher.Constraint("DistanceY", 0, 3, -1, 1, Q("310 mm")),
])
doc.recompute()
hole10 = body.newObject("PartDesign::Hole", "Hole009")
hole10.Profile = sketch16
hole10.ThreadType = "None"
hole10.Diameter = 8
hole10.DepthType = "Dimension"
hole10.Depth = 20
hole10.DrillPoint = "Flat"
hole10.HoleCutType = "Counterbore"
hole10.HoleCutDiameter = 12
hole10.HoleCutDepth = 6

# Sketch on XZ plane
sketch17 = body.newObject("Sketcher::SketchObject", "Sketch016")
sketch17.AttachmentSupport = (doc.getObject("XZ_Plane"), [""])
sketch17.MapMode = "FlatFace"
sketch17.addGeometry(Part.Circle(App.Vector(-318, -310, 0), App.Vector(0, 0, 1), 4), False)
sketch17.addConstraint([
    Sketcher.Constraint("Diameter", 0, Q("8 mm")),
    Sketcher.Constraint("DistanceX", 0, 3, -1, 1, Q("318 mm")),
    Sketcher.Constraint("DistanceY", 0, 3, -1, 1, Q("310 mm")),
])
doc.recompute()
hole11 = body.newObject("PartDesign::Hole", "Hole010")
hole11.Profile = sketch17
hole11.ThreadType = "None"
hole11.Diameter = 8
hole11.DepthType = "Dimension"
hole11.Depth = 20
hole11.DrillPoint = "Flat"
hole11.HoleCutType = "Counterbore"
hole11.HoleCutDiameter = 12
hole11.HoleCutDepth = 6

# Sketch on XZ plane
sketch18 = body.newObject("Sketcher::SketchObject", "Sketch017")
sketch18.AttachmentSupport = (doc.getObject("XZ_Plane"), [""])
sketch18.MapMode = "FlatFace"
sketch18.addGeometry(Part.Circle(App.Vector(-106, -310, 0), App.Vector(0, 0, 1), 4), False)
sketch18.addConstraint([
    Sketcher.Constraint("Diameter", 0, Q("8 mm")),
    Sketcher.Constraint("DistanceX", 0, 3, -1, 1, Q("106 mm")),
    Sketcher.Constraint("DistanceY", 0, 3, -1, 1, Q("310 mm")),
])
doc.recompute()
hole12 = body.newObject("PartDesign::Hole", "Hole011")
hole12.Profile = sketch18
hole12.ThreadType = "None"
hole12.Diameter = 8
hole12.DepthType = "Dimension"
hole12.Depth = 20
hole12.DrillPoint = "Flat"
hole12.HoleCutType = "Counterbore"
hole12.HoleCutDiameter = 12
hole12.HoleCutDepth = 6

# Sketch on XZ plane
sketch19 = body.newObject("Sketcher::SketchObject", "Sketch018")
sketch19.AttachmentSupport = (doc.getObject("XZ_Plane"), [""])
sketch19.MapMode = "FlatFace"
sketch19.addGeometry(Part.Circle(App.Vector(106, -310, 0), App.Vector(0, 0, 1), 4), False)
sketch19.addConstraint([
    Sketcher.Constraint("Diameter", 0, Q("8 mm")),
    Sketcher.Constraint("DistanceX", -1, 1, 0, 3, Q("106 mm")),
    Sketcher.Constraint("DistanceY", 0, 3, -1, 1, Q("310 mm")),
])
doc.recompute()
hole13 = body.newObject("PartDesign::Hole", "Hole012")
hole13.Profile = sketch19
hole13.ThreadType = "None"
hole13.Diameter = 8
hole13.DepthType = "Dimension"
hole13.Depth = 20
hole13.DrillPoint = "Flat"
hole13.HoleCutType = "Counterbore"
hole13.HoleCutDiameter = 12
hole13.HoleCutDepth = 6

# Sketch on XZ plane
sketch20 = body.newObject("Sketcher::SketchObject", "Sketch019")
sketch20.AttachmentSupport = (doc.getObject("XZ_Plane"), [""])
sketch20.MapMode = "FlatFace"
sketch20.addGeometry(Part.Circle(App.Vector(318, -310, 0), App.Vector(0, 0, 1), 4), False)
sketch20.addConstraint([
    Sketcher.Constraint("Diameter", 0, Q("8 mm")),
    Sketcher.Constraint("DistanceX", -1, 1, 0, 3, Q("318 mm")),
    Sketcher.Constraint("DistanceY", 0, 3, -1, 1, Q("310 mm")),
])
doc.recompute()
hole14 = body.newObject("PartDesign::Hole", "Hole013")
hole14.Profile = sketch20
hole14.ThreadType = "None"
hole14.Diameter = 8
hole14.DepthType = "Dimension"
hole14.Depth = 20
hole14.DrillPoint = "Flat"
hole14.HoleCutType = "Counterbore"
hole14.HoleCutDiameter = 12
hole14.HoleCutDepth = 6

# Sketch on XZ plane
sketch21 = body.newObject("Sketcher::SketchObject", "Sketch020")
sketch21.AttachmentSupport = (doc.getObject("XZ_Plane"), [""])
sketch21.MapMode = "FlatFace"
sketch21.addGeometry(Part.Circle(App.Vector(530, -310, 0), App.Vector(0, 0, 1), 4), False)
sketch21.addConstraint([
    Sketcher.Constraint("Diameter", 0, Q("8 mm")),
    Sketcher.Constraint("DistanceX", -1, 1, 0, 3, Q("530 mm")),
    Sketcher.Constraint("DistanceY", 0, 3, -1, 1, Q("310 mm")),
])
doc.recompute()
hole15 = body.newObject("PartDesign::Hole", "Hole014")
hole15.Profile = sketch21
hole15.ThreadType = "None"
hole15.Diameter = 8
hole15.DepthType = "Dimension"
hole15.Depth = 20
hole15.DrillPoint = "Flat"
hole15.HoleCutType = "Counterbore"
hole15.HoleCutDiameter = 12
hole15.HoleCutDepth = 6

# Sketch on XZ plane
sketch22 = body.newObject("Sketcher::SketchObject", "Sketch021")
sketch22.AttachmentSupport = (doc.getObject("XZ_Plane"), [""])
sketch22.MapMode = "FlatFace"
sketch22.addGeometry(Part.Circle(App.Vector(530, -155, 0), App.Vector(0, 0, 1), 4), False)
sketch22.addConstraint([
    Sketcher.Constraint("Diameter", 0, Q("8 mm")),
    Sketcher.Constraint("DistanceX", -1, 1, 0, 3, Q("530 mm")),
    Sketcher.Constraint("DistanceY", 0, 3, -1, 1, Q("155 mm")),
])
doc.recompute()
hole16 = body.newObject("PartDesign::Hole", "Hole015")
hole16.Profile = sketch22
hole16.ThreadType = "None"
hole16.Diameter = 8
hole16.DepthType = "Dimension"
hole16.Depth = 20
hole16.DrillPoint = "Flat"
hole16.HoleCutType = "Counterbore"
hole16.HoleCutDiameter = 12
hole16.HoleCutDepth = 6

# Sketch on XZ plane
sketch23 = body.newObject("Sketcher::SketchObject", "Sketch022")
sketch23.AttachmentSupport = (doc.getObject("XZ_Plane"), [""])
sketch23.MapMode = "FlatFace"
sketch23.addGeometry(Part.Circle(App.Vector(530, 0, 0), App.Vector(0, 0, 1), 4), False)
sketch23.addConstraint([
    Sketcher.Constraint("PointOnObject", 0, 3, -1),
    Sketcher.Constraint("Diameter", 0, Q("8 mm")),
    Sketcher.Constraint("DistanceX", -1, 1, 0, 3, Q("530 mm")),
])
doc.recompute()
hole17 = body.newObject("PartDesign::Hole", "Hole016")
hole17.Profile = sketch23
hole17.ThreadType = "None"
hole17.Diameter = 8
hole17.DepthType = "Dimension"
hole17.Depth = 20
hole17.DrillPoint = "Flat"
hole17.HoleCutType = "Counterbore"
hole17.HoleCutDiameter = 12
hole17.HoleCutDepth = 6

# Sketch on XZ plane
sketch24 = body.newObject("Sketcher::SketchObject", "Sketch023")
sketch24.AttachmentSupport = (doc.getObject("XZ_Plane"), [""])
sketch24.MapMode = "FlatFace"
sketch24.addGeometry(Part.Circle(App.Vector(530, 155, 0), App.Vector(0, 0, 1), 4), False)
sketch24.addConstraint([
    Sketcher.Constraint("Diameter", 0, Q("8 mm")),
    Sketcher.Constraint("DistanceX", -1, 1, 0, 3, Q("530 mm")),
    Sketcher.Constraint("DistanceY", -1, 1, 0, 3, Q("155 mm")),
])
doc.recompute()
hole18 = body.newObject("PartDesign::Hole", "Hole017")
hole18.Profile = sketch24
hole18.ThreadType = "None"
hole18.Diameter = 8
hole18.DepthType = "Dimension"
hole18.Depth = 20
hole18.DrillPoint = "Flat"
hole18.HoleCutType = "Counterbore"
hole18.HoleCutDiameter = 12
hole18.HoleCutDepth = 6
doc.recompute()

fillet = body.newObject("PartDesign::Fillet", "Fillet")
fillet.Base = (hole18, edges_at(hole18, [
    (550, 10, -330),
    (-550, 10, -330),
    (-550, 10, 330),
    (550, 10, 330),
]))
fillet.Radius = 2

# Sketch on XZ plane
sketch25 = body.newObject("Sketcher::SketchObject", "Sketch024")
sketch25.AttachmentSupport = (doc.getObject("XZ_Plane"), [""])
sketch25.MapMode = "FlatFace"
sketch25.addGeometry([
    Part.Circle(App.Vector(0, -250, 0), App.Vector(0, 0, 1), 4),
    Part.Circle(App.Vector(0, -125, 0), App.Vector(0, 0, 1), 4),
    Part.Circle(App.Vector(0, 125, 0), App.Vector(0, 0, 1), 4),
    Part.Circle(App.Vector(0, 250, 0), App.Vector(0, 0, 1), 4),
], False)
sketch25.addConstraint([
    Sketcher.Constraint("Equal", 0, 1),
    Sketcher.Constraint("Equal", 1, 2),
    Sketcher.Constraint("Equal", 2, 3),
    Sketcher.Constraint("Symmetric", 1, 3, 2, 3, -1, 1),
    Sketcher.Constraint("Symmetric", 0, 3, 3, 3, -1, 1),
    Sketcher.Constraint("PointOnObject", 0, 3, -2),
    Sketcher.Constraint("PointOnObject", 1, 3, -2),
    Sketcher.Constraint("Diameter", 0, Q("8 mm")),
    Sketcher.Constraint("DistanceY", 0, 3, -1, 1, Q("250 mm")),
    Sketcher.Constraint("DistanceY", 1, 3, -1, 1, Q("125 mm")),
])
doc.recompute()
hole19 = body.newObject("PartDesign::Hole", "Hole018")
hole19.Profile = sketch25
hole19.ThreadType = "None"
hole19.Diameter = 8
hole19.DepthType = "Dimension"
hole19.Depth = 20
hole19.DrillPoint = "Flat"
hole19.HoleCutType = "Counterbore"
hole19.HoleCutDiameter = 12
hole19.HoleCutDepth = 6

doc.recompute()
